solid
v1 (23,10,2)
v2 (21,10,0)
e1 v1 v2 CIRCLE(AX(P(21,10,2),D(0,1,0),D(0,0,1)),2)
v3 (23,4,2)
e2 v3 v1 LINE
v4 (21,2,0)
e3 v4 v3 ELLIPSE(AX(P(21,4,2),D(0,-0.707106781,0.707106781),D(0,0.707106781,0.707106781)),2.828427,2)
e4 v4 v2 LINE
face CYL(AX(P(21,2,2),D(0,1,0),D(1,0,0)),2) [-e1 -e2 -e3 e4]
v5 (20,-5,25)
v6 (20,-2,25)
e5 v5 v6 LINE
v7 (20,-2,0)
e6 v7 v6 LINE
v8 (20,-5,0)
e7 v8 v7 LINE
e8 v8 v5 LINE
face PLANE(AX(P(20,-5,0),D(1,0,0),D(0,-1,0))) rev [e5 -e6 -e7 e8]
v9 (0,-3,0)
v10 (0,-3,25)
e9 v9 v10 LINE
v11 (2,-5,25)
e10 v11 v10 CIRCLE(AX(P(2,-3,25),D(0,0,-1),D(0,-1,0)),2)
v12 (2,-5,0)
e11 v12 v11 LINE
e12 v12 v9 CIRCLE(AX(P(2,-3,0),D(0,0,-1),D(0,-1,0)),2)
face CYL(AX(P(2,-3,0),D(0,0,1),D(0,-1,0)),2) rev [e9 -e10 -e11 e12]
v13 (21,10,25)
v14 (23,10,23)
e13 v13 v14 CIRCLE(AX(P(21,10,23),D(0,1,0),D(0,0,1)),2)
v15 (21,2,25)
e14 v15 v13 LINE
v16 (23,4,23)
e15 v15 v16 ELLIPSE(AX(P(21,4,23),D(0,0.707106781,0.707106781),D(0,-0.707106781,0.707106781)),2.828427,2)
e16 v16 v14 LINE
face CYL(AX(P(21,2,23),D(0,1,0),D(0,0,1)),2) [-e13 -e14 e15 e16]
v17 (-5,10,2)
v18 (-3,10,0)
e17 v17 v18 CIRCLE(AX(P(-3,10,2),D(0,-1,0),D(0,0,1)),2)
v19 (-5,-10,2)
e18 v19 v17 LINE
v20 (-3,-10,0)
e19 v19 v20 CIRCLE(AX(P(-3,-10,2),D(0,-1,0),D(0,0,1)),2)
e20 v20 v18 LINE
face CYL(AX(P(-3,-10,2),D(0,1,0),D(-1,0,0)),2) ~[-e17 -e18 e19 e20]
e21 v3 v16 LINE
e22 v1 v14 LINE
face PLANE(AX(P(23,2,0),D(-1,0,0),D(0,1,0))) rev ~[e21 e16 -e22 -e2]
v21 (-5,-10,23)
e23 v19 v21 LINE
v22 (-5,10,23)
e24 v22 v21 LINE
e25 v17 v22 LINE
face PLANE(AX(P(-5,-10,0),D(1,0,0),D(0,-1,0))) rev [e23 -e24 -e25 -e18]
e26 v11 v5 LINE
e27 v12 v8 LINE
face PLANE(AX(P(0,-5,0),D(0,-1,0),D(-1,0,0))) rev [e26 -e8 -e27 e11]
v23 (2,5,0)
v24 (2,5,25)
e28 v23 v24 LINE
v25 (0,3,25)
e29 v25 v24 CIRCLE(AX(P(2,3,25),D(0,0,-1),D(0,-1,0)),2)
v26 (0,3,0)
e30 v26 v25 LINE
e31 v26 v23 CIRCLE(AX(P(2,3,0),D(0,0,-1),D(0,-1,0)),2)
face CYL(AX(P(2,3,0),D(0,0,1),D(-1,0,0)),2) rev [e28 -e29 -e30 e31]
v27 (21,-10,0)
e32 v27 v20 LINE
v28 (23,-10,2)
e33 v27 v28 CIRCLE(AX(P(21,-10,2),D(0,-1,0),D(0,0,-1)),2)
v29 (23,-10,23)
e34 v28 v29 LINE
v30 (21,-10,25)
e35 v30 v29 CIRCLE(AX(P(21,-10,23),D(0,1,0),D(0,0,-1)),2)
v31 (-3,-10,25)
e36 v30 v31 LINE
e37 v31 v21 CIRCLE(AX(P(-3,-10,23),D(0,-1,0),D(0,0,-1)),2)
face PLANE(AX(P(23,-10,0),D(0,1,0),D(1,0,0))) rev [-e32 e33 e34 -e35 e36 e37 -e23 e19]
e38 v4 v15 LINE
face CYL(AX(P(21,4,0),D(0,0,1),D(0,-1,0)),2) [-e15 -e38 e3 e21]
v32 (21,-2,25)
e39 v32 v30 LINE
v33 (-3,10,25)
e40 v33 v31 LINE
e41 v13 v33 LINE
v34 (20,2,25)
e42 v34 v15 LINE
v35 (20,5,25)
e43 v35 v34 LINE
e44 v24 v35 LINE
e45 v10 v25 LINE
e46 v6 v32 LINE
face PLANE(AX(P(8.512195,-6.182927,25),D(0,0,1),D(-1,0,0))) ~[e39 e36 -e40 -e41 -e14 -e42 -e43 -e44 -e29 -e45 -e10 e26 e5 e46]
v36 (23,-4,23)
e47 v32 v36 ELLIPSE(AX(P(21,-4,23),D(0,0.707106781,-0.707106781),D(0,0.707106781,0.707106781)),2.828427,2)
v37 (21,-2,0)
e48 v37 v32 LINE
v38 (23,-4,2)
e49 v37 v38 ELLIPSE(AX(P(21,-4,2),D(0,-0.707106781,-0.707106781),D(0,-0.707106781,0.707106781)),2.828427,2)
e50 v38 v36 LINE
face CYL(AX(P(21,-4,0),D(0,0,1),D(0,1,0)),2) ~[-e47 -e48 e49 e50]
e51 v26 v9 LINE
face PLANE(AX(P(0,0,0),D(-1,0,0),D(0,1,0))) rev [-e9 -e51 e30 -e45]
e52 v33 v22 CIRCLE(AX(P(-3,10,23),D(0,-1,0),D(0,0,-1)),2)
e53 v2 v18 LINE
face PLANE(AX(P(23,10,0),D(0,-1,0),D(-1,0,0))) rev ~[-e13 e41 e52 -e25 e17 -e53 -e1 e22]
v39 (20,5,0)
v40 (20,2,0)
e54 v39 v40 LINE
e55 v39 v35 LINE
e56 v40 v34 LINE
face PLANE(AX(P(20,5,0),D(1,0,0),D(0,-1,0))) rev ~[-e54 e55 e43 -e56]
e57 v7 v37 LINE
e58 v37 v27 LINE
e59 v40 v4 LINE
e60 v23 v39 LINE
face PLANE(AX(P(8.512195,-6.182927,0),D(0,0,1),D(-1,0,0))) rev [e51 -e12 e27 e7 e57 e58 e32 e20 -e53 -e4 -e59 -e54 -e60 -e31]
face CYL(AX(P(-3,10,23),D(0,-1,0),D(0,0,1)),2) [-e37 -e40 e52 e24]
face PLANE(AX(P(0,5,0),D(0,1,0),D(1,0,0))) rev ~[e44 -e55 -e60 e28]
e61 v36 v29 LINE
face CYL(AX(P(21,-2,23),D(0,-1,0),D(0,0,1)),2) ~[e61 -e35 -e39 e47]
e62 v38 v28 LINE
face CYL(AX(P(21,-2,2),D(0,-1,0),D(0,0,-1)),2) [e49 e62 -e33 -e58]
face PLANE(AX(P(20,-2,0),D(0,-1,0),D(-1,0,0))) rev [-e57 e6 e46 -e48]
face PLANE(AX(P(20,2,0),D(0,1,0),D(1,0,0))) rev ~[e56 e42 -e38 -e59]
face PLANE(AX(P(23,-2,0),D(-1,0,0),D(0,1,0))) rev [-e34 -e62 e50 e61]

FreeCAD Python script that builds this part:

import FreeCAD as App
import Part
import Sketcher


def edges_at(feature, points):
    """Names of the edges that pass closest to the given points."""
    edges = feature.Shape.Edges
    near = lambda p: min(range(len(edges)), key=lambda i: edges[i].distToShape(Part.Vertex(*p))[0])
    return sorted({f"Edge{near(p) + 1}" for p in points})


def add_polygon(sketch, points):
    """Adds a closed chain of lines whose ends are joined by coincident constraints."""
    first, n = sketch.GeometryCount, len(points)
    for a, b in zip(points, points[1:] + points[:1]):
        sketch.addGeometry(Part.LineSegment(App.Vector(*a, 0), App.Vector(*b, 0)), False)
    for i in range(n):
        sketch.addConstraint(Sketcher.Constraint("Coincident", first + i, 2, first + (i + 1) % n, 1))

doc = App.newDocument("Part")
params = doc.addObject("Spreadsheet::Sheet", "Params")
for row, (alias, value) in enumerate([
    ("sketch1_width", "3 mm"),
    ("sketch1_width2", "28 mm"),
    ("sketch1_width3", "5 mm"),
    ("sketch1_height", "8 mm"),
    ("pad1_length", "25 mm"),
    ("fillet_radius", "2 mm"),
], start=1):
    params.set(f"A{row}", alias)
    params.set(f"B{row}", "=" + value)
    params.setAlias(f"B{row}", alias)

body = doc.addObject("PartDesign::Body", "Body")

sketch1 = doc.addObject("Sketcher::SketchObject", "Sketch")
body.addObject(sketch1)
sketch1.AttachmentSupport = (doc.XY_Plane, [""])
sketch1.MapMode = "FlatFace"
add_polygon(sketch1, [(20, 2), (23, 2), (23, 10), (-5, 10), (-5, 0), (0, 0), (0, 5), (20, 5)])
sketch1.addConstraint([
    Sketcher.Constraint("Horizontal", 0),
    Sketcher.Constraint("Vertical", 1),
    Sketcher.Constraint("Horizontal", 2),
    Sketcher.Constraint("Vertical", 3),
    Sketcher.Constraint("Horizontal", 4),
    Sketcher.Constraint("Vertical", 5),
    Sketcher.Constraint("Horizontal", 6),
    Sketcher.Constraint("Vertical", 7),
    Sketcher.Constraint("Coincident", 4, 2, -1, 1),
    Sketcher.Constraint("Equal", 4, 5),
    Sketcher.Constraint("Equal", 0, 7),
    Sketcher.Constraint("DistanceX", 0, 1, 0, 2, 3.0),
    Sketcher.Constraint("DistanceX", 2, 2, 2, 1, 28.0),
    Sketcher.Constraint("DistanceX", 4, 1, 4, 2, 5.0),
    Sketcher.Constraint("DistanceY", 1, 1, 1, 2, 8.0),
])
sketch1.setExpression("Constraints[19]", "Params.sketch1_width")
sketch1.setExpression("Constraints[20]", "Params.sketch1_width2")
sketch1.setExpression("Constraints[21]", "Params.sketch1_width3")
sketch1.setExpression("Constraints[22]", "Params.sketch1_height")
pad1 = doc.addObject("PartDesign::Pad", "Pad")
body.addObject(pad1)
pad1.Profile = sketch1
pad1.setExpression("Length", "Params.pad1_length")
body2 = doc.addObject("PartDesign::Body", "Body001")
doc.recompute()

body2.BaseFeature = body
doc.recompute()

mirroring = doc.addObject("Part::Mirroring", "Mirroring")
mirroring.Source = body
mirroring.Base = App.Vector(0, 0, 0)
mirroring.Normal = App.Vector(0, -1, 0)
body3 = doc.addObject("PartDesign::Body", "Body002")
body3.BaseFeature = mirroring
boolean = doc.addObject("PartDesign::Boolean", "Boolean")
body2.addObject(boolean)
boolean.Type = "Fuse"
boolean.addObjects([body3])
doc.recompute()

fillet = doc.addObject("PartDesign::Fillet", "Fillet")
body2.addObject(fillet)
fillet.Base = (boolean, edges_at(boolean, [
    (0, 5, 12.5),
    (0, -5, 12.5),
    (23, 2, 12.5),
    (23, -2, 12.5),
    (-5, 0, 25),
    (-5, 0, 0),
    (23, 6, 25),
    (23, -6, 25),
    (23, -6, 0),
    (23, 6, 0),
]))
fillet.setExpression("Radius", "Params.fillet_radius")
mirroring.Visibility = False

doc.recompute()
